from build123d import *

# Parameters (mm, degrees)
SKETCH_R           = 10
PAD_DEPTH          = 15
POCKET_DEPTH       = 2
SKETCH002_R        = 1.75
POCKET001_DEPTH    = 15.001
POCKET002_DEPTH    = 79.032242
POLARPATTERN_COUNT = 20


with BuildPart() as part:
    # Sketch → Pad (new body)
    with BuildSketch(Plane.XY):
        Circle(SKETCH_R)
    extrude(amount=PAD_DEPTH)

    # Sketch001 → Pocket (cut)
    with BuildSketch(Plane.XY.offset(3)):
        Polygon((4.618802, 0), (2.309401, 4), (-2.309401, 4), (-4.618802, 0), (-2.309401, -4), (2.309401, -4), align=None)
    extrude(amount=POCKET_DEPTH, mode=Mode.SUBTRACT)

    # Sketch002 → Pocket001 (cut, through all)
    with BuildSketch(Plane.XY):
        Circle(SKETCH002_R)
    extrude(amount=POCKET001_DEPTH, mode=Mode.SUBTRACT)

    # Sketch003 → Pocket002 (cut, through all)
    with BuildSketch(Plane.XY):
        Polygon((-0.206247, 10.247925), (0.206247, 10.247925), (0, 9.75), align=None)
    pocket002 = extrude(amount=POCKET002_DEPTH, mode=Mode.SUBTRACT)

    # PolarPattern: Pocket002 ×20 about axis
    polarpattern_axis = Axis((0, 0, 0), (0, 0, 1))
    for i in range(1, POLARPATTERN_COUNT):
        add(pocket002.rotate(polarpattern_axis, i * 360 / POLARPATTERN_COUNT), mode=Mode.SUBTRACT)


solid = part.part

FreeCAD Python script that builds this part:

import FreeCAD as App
import Part
import Sketcher
from FreeCAD import Vector
Q = App.Units.Quantity

doc = App.newDocument("Part")
body = doc.addObject("PartDesign::Body", "Body")

sketch1 = body.newObject("Sketcher::SketchObject", "Sketch")
sketch1.AttachmentSupport = (doc.getObject("XY_Plane"), [""])
sketch1.MapMode = "FlatFace"
sketch1.addGeometry(Part.Circle(Vector(0, 0, 0), Vector(0, 0, 1), 10), False)
sketch1.addConstraint([
    Sketcher.Constraint("Coincident", 0, 3, -1, 1),
    Sketcher.Constraint("Diameter", 0, Q("20 mm")),
])
pad1 = body.newObject("PartDesign::Pad", "Pad")
pad1.Profile = sketch1
pad1.Length = 15

sketch2 = body.newObject("Sketcher::SketchObject", "Sketch001")
sketch2.AttachmentSupport = (doc.getObject("XY_Plane"), [""])
sketch2.MapMode = "FlatFace"
sketch2.AttachmentOffset = App.Placement(Vector(0, 0, 3), App.Rotation())
sketch2.addGeometry([
    Part.LineSegment(Vector(4.6, 0, 0), Vector(2.3, 4, 0)),
    Part.LineSegment(Vector(2.3, 4, 0), Vector(-2.3, 4, 0)),
    Part.LineSegment(Vector(-2.3, 4, 0), Vector(-4.6, 0, 0)),
    Part.LineSegment(Vector(-4.6, 0, 0), Vector(-2.3, -4, 0)),
    Part.LineSegment(Vector(-2.3, -4, 0), Vector(2.3, -4, 0)),
    Part.LineSegment(Vector(2.3, -4, 0), Vector(4.6, 0, 0)),
], False)
sketch2.addConstraint([
    Sketcher.Constraint("Coincident", 0, 2, 1, 1),
    Sketcher.Constraint("Coincident", 1, 2, 2, 1),
    Sketcher.Constraint("Coincident", 2, 2, 3, 1),
    Sketcher.Constraint("Coincident", 3, 2, 4, 1),
    Sketcher.Constraint("Coincident", 4, 2, 5, 1),
    Sketcher.Constraint("Coincident", 5, 2, 0, 1),
    Sketcher.Constraint("Horizontal", 1),
    Sketcher.Constraint("Horizontal", 4),
    Sketcher.Constraint("Symmetric", 0, 2, 3, 2, -1, 1),
    Sketcher.Constraint("Symmetric", 2, 2, 5, 2, -1, 1),
    Sketcher.Constraint("PointOnObject", 2, 2, -1),
    Sketcher.Constraint("Parallel", 2, 5),
    Sketcher.Constraint("Vertical", 1, 2, 3, 2),
    Sketcher.Constraint("Angle", 0, Q("119.999999 deg")),
    Sketcher.Constraint("DistanceY", -1, 1, 0, 2, Q("4 mm")),
    Sketcher.Constraint("DistanceX", 1, 2, 1, 1, Q("4.618802 mm")),
])
pocket1 = body.newObject("PartDesign::Pocket", "Pocket")
pocket1.Profile = sketch2
pocket1.Length = 2
pocket1.Reversed = True

sketch3 = body.newObject("Sketcher::SketchObject", "Sketch002")
sketch3.AttachmentSupport = (doc.getObject("XY_Plane"), [""])
sketch3.MapMode = "FlatFace"
sketch3.addGeometry(Part.Circle(Vector(0, 0, 0), Vector(0, 0, 1), 1.8), False)
sketch3.addConstraint([
    Sketcher.Constraint("Coincident", 0, 3, -1, 1),
    Sketcher.Constraint("Diameter", 0, Q("3.5 mm")),
])
pocket2 = body.newObject("PartDesign::Pocket", "Pocket001")
pocket2.Profile = sketch3
pocket2.Type = "ThroughAll"
pocket2.Reversed = True

sketch4 = body.newObject("Sketcher::SketchObject", "Sketch003")
sketch4.AttachmentSupport = (doc.getObject("XY_Plane"), [""])
sketch4.MapMode = "FlatFace"
sketch4.addGeometry([
    Part.LineSegment(Vector(0.21, 10.25, 0), Vector(-0.21, 10.25, 0)),
    Part.LineSegment(Vector(-0.21, 10.25, 0), Vector(0, 9.75, 0)),
    Part.LineSegment(Vector(0, 9.75, 0), Vector(0.21, 10.25, 0)),
], False)
sketch4.addConstraint([
    Sketcher.Constraint("Coincident", 0, 2, 1, 1),
    Sketcher.Constraint("Coincident", 1, 2, 2, 1),
    Sketcher.Constraint("Coincident", 2, 2, 0, 1),
    Sketcher.Constraint("Horizontal", 0),
    Sketcher.Constraint("PointOnObject", 1, 2, -2),
    Sketcher.Constraint("Equal", 1, 2),
    Sketcher.Constraint("DistanceY", -1, 1, 1, 2, Q("9.75 mm")),
    Sketcher.Constraint("Distance", 1, Q("0.53895 mm")),
    Sketcher.Constraint("DistanceX", 0, 2, 0, 1, Q("0.412494 mm")),
])
pocket3 = body.newObject("PartDesign::Pocket", "Pocket002")
pocket3.Profile = sketch4
pocket3.Type = "ThroughAll"
pocket3.Reversed = True
doc.recompute()

polarpattern = body.newObject("PartDesign::PolarPattern", "PolarPattern")
polarpattern.Originals = [pocket3]
polarpattern.Axis = (doc.getObject("Z_Axis"), [""])
polarpattern.Angle = 360
polarpattern.Occurrences = 20
body.Tip = polarpattern

doc.recompute()
